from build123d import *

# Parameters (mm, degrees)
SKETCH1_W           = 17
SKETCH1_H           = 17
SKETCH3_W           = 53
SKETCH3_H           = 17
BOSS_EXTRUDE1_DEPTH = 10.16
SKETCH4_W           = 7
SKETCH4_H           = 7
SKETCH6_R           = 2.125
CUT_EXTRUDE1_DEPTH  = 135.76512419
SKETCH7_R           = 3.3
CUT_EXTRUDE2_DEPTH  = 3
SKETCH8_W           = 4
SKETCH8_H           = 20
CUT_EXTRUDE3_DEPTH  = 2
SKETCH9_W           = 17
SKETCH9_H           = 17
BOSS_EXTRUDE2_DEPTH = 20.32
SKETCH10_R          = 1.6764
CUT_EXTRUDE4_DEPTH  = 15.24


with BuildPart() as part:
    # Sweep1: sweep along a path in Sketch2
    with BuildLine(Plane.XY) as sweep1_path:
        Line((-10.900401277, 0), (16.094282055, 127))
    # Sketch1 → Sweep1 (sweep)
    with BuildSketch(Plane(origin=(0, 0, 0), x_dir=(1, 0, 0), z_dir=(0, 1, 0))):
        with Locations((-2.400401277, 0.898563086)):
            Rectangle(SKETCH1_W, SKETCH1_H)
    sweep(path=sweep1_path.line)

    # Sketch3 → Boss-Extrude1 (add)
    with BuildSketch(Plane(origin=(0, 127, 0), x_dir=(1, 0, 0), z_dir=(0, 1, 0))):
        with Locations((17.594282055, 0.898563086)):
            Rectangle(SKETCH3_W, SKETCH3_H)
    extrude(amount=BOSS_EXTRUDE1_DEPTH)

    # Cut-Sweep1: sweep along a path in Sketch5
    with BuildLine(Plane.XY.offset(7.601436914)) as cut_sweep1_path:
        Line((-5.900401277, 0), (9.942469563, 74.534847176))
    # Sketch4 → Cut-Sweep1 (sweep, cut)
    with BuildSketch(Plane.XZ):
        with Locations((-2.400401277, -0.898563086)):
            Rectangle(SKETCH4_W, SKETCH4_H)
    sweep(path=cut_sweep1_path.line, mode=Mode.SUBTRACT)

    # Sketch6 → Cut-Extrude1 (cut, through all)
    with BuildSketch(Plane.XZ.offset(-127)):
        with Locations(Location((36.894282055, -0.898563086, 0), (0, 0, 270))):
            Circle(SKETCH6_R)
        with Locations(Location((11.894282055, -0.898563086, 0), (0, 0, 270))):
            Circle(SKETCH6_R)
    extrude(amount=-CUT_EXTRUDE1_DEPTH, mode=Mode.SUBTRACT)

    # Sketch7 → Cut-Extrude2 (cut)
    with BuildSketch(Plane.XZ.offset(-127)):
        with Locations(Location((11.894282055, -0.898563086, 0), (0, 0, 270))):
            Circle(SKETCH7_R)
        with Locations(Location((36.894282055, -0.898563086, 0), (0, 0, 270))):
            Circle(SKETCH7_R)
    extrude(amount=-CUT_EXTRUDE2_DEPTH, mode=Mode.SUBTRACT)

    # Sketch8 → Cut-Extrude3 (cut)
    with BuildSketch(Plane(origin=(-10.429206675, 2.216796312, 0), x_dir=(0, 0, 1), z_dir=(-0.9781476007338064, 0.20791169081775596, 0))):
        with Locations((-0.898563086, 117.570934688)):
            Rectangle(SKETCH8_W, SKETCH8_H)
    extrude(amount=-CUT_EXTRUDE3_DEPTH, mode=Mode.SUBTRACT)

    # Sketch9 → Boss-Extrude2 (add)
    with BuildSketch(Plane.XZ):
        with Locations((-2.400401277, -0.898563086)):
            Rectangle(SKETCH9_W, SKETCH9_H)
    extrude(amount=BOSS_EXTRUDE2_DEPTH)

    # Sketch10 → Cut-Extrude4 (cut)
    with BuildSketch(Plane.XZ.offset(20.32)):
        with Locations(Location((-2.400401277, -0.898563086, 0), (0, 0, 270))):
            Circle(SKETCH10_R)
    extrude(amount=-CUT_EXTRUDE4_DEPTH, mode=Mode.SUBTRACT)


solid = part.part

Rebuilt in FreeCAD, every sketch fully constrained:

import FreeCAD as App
import Part
import Sketcher
from FreeCAD import Vector

doc = App.newDocument("Part")
body = doc.addObject("PartDesign::Body", "Body")

# Sketch on XZ plane
sketch1 = body.newObject("Sketcher::SketchObject", "Sketch")
sketch1.AttachmentSupport = (doc.getObject("XZ_Plane"), [""])
sketch1.MapMode = "FlatFace"
sketch1.addGeometry([
    Part.LineSegment(Vector(-10.900401, -9.398563, 0), Vector(-10.900401, 7.601437, 0)),
    Part.LineSegment(Vector(-10.900401, 7.601437, 0), Vector(6.099599, 7.601437, 0)),
    Part.LineSegment(Vector(6.099599, 7.601437, 0), Vector(6.099599, -9.398563, 0)),
    Part.LineSegment(Vector(6.099599, -9.398563, 0), Vector(-10.900401, -9.398563, 0)),
], False)
sketch1.addConstraint([
    Sketcher.Constraint("Coincident", 0, 2, 1, 1),
    Sketcher.Constraint("Coincident", 1, 2, 2, 1),
    Sketcher.Constraint("Coincident", 2, 2, 3, 1),
    Sketcher.Constraint("Coincident", 3, 2, 0, 1),
    Sketcher.Constraint("Vertical", 0),
    Sketcher.Constraint("Horizontal", 1),
    Sketcher.Constraint("Vertical", 2),
    Sketcher.Constraint("Horizontal", 3),
    Sketcher.Constraint("Equal", 3, 0),
    Sketcher.Constraint("DistanceX", 1, 1, 1, 2, 17.0),
    Sketcher.Constraint("DistanceX", 0, 2, -1, 1, 10.900401),
    Sketcher.Constraint("DistanceY", -1, 1, 0, 2, 7.601437),
])

# Sketch on an angled plane
sketch2 = body.newObject("Sketcher::SketchObject", "Sketch001")
sketch2.Placement = App.Placement(Vector(-10.429207, 2.216796, 0), App.Rotation(Vector(0.207911691, 0.978147601, 0), Vector(0, 0, 1.000000001), Vector(0.978147601, -0.207911691, 0), "ZXY"))
sketch2.addGeometry(Part.LineSegment(Vector(-2.266321, 0, 0), Vector(127.570935, 0, 0)), False)
sketch2.addConstraint([
    Sketcher.Constraint("Horizontal", 0),
    Sketcher.Constraint("PointOnObject", 0, 1, -1),
    Sketcher.Constraint("DistanceX", 0, 1, 0, 2, 129.837256),
    Sketcher.Constraint("DistanceX", 0, 1, -1, 1, 2.266321),
])
doc.recompute()

additivepipe = body.newObject("PartDesign::AdditivePipe", "AdditivePipe")
additivepipe.Profile = sketch1
additivepipe.Spine = (sketch2, ["Edge1"])

# Sketch on XZ plane
sketch3 = body.newObject("Sketcher::SketchObject", "Sketch002")
sketch3.AttachmentSupport = (doc.getObject("XZ_Plane"), [""])
sketch3.MapMode = "FlatFace"
sketch3.AttachmentOffset = App.Placement(Vector(0, 0, -127), App.Rotation())
sketch3.addGeometry([
    Part.LineSegment(Vector(-8.905718, -9.398563, 0), Vector(-8.905718, 7.601437, 0)),
    Part.LineSegment(Vector(-8.905718, 7.601437, 0), Vector(44.094282, 7.601437, 0)),
    Part.LineSegment(Vector(44.094282, 7.601437, 0), Vector(44.094282, -9.398563, 0)),
    Part.LineSegment(Vector(44.094282, -9.398563, 0), Vector(-8.905718, -9.398563, 0)),
], False)
sketch3.addConstraint([
    Sketcher.Constraint("Coincident", 0, 2, 1, 1),
    Sketcher.Constraint("Coincident", 1, 2, 2, 1),
    Sketcher.Constraint("Coincident", 2, 2, 3, 1),
    Sketcher.Constraint("Coincident", 3, 2, 0, 1),
    Sketcher.Constraint("Vertical", 0),
    Sketcher.Constraint("Horizontal", 1),
    Sketcher.Constraint("Vertical", 2),
    Sketcher.Constraint("Horizontal", 3),
    Sketcher.Constraint("DistanceX", 1, 1, 1, 2, 53.0),
    Sketcher.Constraint("DistanceY", 0, 1, 0, 2, 17.0),
    Sketcher.Constraint("DistanceX", 0, 2, -1, 1, 8.905718),
    Sketcher.Constraint("DistanceY", -1, 1, 0, 2, 7.601437),
])
pad1 = body.newObject("PartDesign::Pad", "Pad")
pad1.Profile = sketch3
pad1.Length = 10.16
pad1.Reversed = True

# Sketch on XZ plane
sketch4 = body.newObject("Sketcher::SketchObject", "Sketch003")
sketch4.AttachmentSupport = (doc.getObject("XZ_Plane"), [""])
sketch4.MapMode = "FlatFace"
sketch4.addGeometry([
    Part.LineSegment(Vector(-5.900401, 2.601437, 0), Vector(-5.900401, -4.398563, 0)),
    Part.LineSegment(Vector(-5.900401, -4.398563, 0), Vector(1.099599, -4.398563, 0)),
    Part.LineSegment(Vector(1.099599, -4.398563, 0), Vector(1.099599, 2.601437, 0)),
    Part.LineSegment(Vector(1.099599, 2.601437, 0), Vector(-5.900401, 2.601437, 0)),
], False)
sketch4.addConstraint([
    Sketcher.Constraint("Coincident", 0, 2, 1, 1),
    Sketcher.Constraint("Coincident", 1, 2, 2, 1),
    Sketcher.Constraint("Coincident", 2, 2, 3, 1),
    Sketcher.Constraint("Coincident", 3, 2, 0, 1),
    Sketcher.Constraint("Vertical", 0),
    Sketcher.Constraint("Horizontal", 1),
    Sketcher.Constraint("Vertical", 2),
    Sketcher.Constraint("Horizontal", 3),
    Sketcher.Constraint("Equal", 3, 0),
    Sketcher.Constraint("DistanceX", 1, 1, 1, 2, 7.0),
    Sketcher.Constraint("DistanceX", 0, 2, -1, 1, 5.900401),
    Sketcher.Constraint("DistanceY", 0, 2, -1, 1, 4.398563),
])

# Sketch on an angled plane
sketch5 = body.newObject("Sketcher::SketchObject", "Sketch004")
sketch5.Placement = App.Placement(Vector(-5.645343, 1.199955, 0), App.Rotation(Vector(0.207911691, 0.978147601, 0), Vector(0, 0, 1.000000001), Vector(0.978147601, -0.207911691, 0), "ZXY"))
sketch5.addGeometry(Part.LineSegment(Vector(-1.226762, 7.601437, 0), Vector(74.973238, 7.601437, 0)), False)
sketch5.addConstraint([
    Sketcher.Constraint("Horizontal", 0),
    Sketcher.Constraint("DistanceX", 0, 1, 0, 2, 76.2),
    Sketcher.Constraint("DistanceX", 0, 1, -1, 1, 1.226762),
    Sketcher.Constraint("DistanceY", -1, 1, 0, 1, 7.601437),
])
doc.recompute()

subtractivepipe = body.newObject("PartDesign::SubtractivePipe", "SubtractivePipe")
subtractivepipe.Profile = sketch4
subtractivepipe.Spine = (sketch5, ["Edge1"])

# Sketch on XZ plane
sketch6 = body.newObject("Sketcher::SketchObject", "Sketch005")
sketch6.AttachmentSupport = (doc.getObject("XZ_Plane"), [""])
sketch6.MapMode = "FlatFace"
sketch6.AttachmentOffset = App.Placement(Vector(0, 0, -127), App.Rotation())
sketch6.addGeometry([
    Part.Circle(Vector(36.894282, -0.898563, 0), Vector(0, 0, 1), 2.125),
    Part.Circle(Vector(11.894282, -0.898563, 0), Vector(0, 0, 1), 2.125),
], False)
sketch6.addConstraint([
    Sketcher.Constraint("Equal", 0, 1),
    Sketcher.Constraint("Horizontal", 0, 3, 1, 3),
    Sketcher.Constraint("Diameter", 0, 4.25),
    Sketcher.Constraint("DistanceX", 1, 3, 0, 3, 25.0),
    Sketcher.Constraint("DistanceX", -1, 1, 0, 3, 36.894282),
    Sketcher.Constraint("DistanceY", 0, 3, -1, 1, 0.898563),
])
pocket1 = body.newObject("PartDesign::Pocket", "Pocket")
pocket1.Profile = sketch6
pocket1.Type = "ThroughAll"

# Sketch on XZ plane
sketch7 = body.newObject("Sketcher::SketchObject", "Sketch006")
sketch7.AttachmentSupport = (doc.getObject("XZ_Plane"), [""])
sketch7.MapMode = "FlatFace"
sketch7.AttachmentOffset = App.Placement(Vector(0, 0, -127), App.Rotation())
sketch7.addGeometry([
    Part.Circle(Vector(11.894282, -0.898563, 0), Vector(0, 0, 1), 3.3),
    Part.Circle(Vector(36.894282, -0.898563, 0), Vector(0, 0, 1), 3.3),
], False)
sketch7.addConstraint([
    Sketcher.Constraint("Equal", 0, 1),
    Sketcher.Constraint("Horizontal", 0, 3, 1, 3),
    Sketcher.Constraint("Diameter", 0, 6.6),
    Sketcher.Constraint("DistanceX", 0, 3, 1, 3, 25.0),
    Sketcher.Constraint("DistanceX", -1, 1, 0, 3, 11.894282),
    Sketcher.Constraint("DistanceY", 0, 3, -1, 1, 0.898563),
])
pocket2 = body.newObject("PartDesign::Pocket", "Pocket001")
pocket2.Profile = sketch7
pocket2.Length = 3

# Sketch on an angled plane
sketch8 = body.newObject("Sketcher::SketchObject", "Sketch007")
sketch8.Placement = App.Placement(Vector(-10.429207, 2.216796, 0), App.Rotation(Vector(0, 0, 1), Vector(0.207911691, 0.978147601, 0), Vector(-0.978147601, 0.207911691, 0), "ZXY"))
sketch8.addGeometry([
    Part.LineSegment(Vector(-2.898563, 127.570935, 0), Vector(-2.898563, 107.570935, 0)),
    Part.LineSegment(Vector(-2.898563, 107.570935, 0), Vector(1.101437, 107.570935, 0)),
    Part.LineSegment(Vector(1.101437, 107.570935, 0), Vector(1.101437, 127.570935, 0)),
    Part.LineSegment(Vector(1.101437, 127.570935, 0), Vector(-2.898563, 127.570935, 0)),
], False)
sketch8.addConstraint([
    Sketcher.Constraint("Coincident", 0, 2, 1, 1),
    Sketcher.Constraint("Coincident", 1, 2, 2, 1),
    Sketcher.Constraint("Coincident", 2, 2, 3, 1),
    Sketcher.Constraint("Coincident", 3, 2, 0, 1),
    Sketcher.Constraint("Vertical", 0),
    Sketcher.Constraint("Horizontal", 1),
    Sketcher.Constraint("Vertical", 2),
    Sketcher.Constraint("Horizontal", 3),
    Sketcher.Constraint("DistanceX", 1, 1, 1, 2, 4.0),
    Sketcher.Constraint("DistanceY", 0, 2, 0, 1, 20.0),
    Sketcher.Constraint("DistanceX", 0, 2, -1, 1, 2.898563),
    Sketcher.Constraint("DistanceY", -1, 1, 0, 2, 107.570935),
])
pocket3 = body.newObject("PartDesign::Pocket", "Pocket002")
pocket3.Profile = sketch8
pocket3.Length = 2

# Sketch on XZ plane
sketch9 = body.newObject("Sketcher::SketchObject", "Sketch008")
sketch9.AttachmentSupport = (doc.getObject("XZ_Plane"), [""])
sketch9.MapMode = "FlatFace"
sketch9.addGeometry([
    Part.LineSegment(Vector(-10.900401, 7.601437, 0), Vector(-10.900401, -9.398563, 0)),
    Part.LineSegment(Vector(-10.900401, -9.398563, 0), Vector(6.099599, -9.398563, 0)),
    Part.LineSegment(Vector(6.099599, -9.398563, 0), Vector(6.099599, 7.601437, 0)),
    Part.LineSegment(Vector(6.099599, 7.601437, 0), Vector(-10.900401, 7.601437, 0)),
], False)
sketch9.addConstraint([
    Sketcher.Constraint("Coincident", 0, 2, 1, 1),
    Sketcher.Constraint("Coincident", 1, 2, 2, 1),
    Sketcher.Constraint("Coincident", 2, 2, 3, 1),
    Sketcher.Constraint("Coincident", 3, 2, 0, 1),
    Sketcher.Constraint("Vertical", 0),
    Sketcher.Constraint("Horizontal", 1),
    Sketcher.Constraint("Vertical", 2),
    Sketcher.Constraint("Horizontal", 3),
    Sketcher.Constraint("Equal", 3, 0),
    Sketcher.Constraint("DistanceX", 1, 1, 1, 2, 17.0),
    Sketcher.Constraint("DistanceX", 0, 2, -1, 1, 10.900401),
    Sketcher.Constraint("DistanceY", 0, 2, -1, 1, 9.398563),
])
pad2 = body.newObject("PartDesign::Pad", "Pad001")
pad2.Profile = sketch9
pad2.Length = 20.32

# Sketch on XZ plane
sketch10 = body.newObject("Sketcher::SketchObject", "Sketch009")
sketch10.AttachmentSupport = (doc.getObject("XZ_Plane"), [""])
sketch10.MapMode = "FlatFace"
sketch10.AttachmentOffset = App.Placement(Vector(0, 0, 20.32), App.Rotation())
sketch10.addGeometry(Part.Circle(Vector(-2.400401, -0.898563, 0), Vector(0, 0, 1), 1.6764), False)
sketch10.addConstraint([
    Sketcher.Constraint("Diameter", 0, 3.3528),
    Sketcher.Constraint("DistanceX", 0, 3, -1, 1, 2.400401),
    Sketcher.Constraint("DistanceY", 0, 3, -1, 1, 0.898563),
])
pocket4 = body.newObject("PartDesign::Pocket", "Pocket003")
pocket4.Profile = sketch10
pocket4.Length = 15.24

doc.recompute()
